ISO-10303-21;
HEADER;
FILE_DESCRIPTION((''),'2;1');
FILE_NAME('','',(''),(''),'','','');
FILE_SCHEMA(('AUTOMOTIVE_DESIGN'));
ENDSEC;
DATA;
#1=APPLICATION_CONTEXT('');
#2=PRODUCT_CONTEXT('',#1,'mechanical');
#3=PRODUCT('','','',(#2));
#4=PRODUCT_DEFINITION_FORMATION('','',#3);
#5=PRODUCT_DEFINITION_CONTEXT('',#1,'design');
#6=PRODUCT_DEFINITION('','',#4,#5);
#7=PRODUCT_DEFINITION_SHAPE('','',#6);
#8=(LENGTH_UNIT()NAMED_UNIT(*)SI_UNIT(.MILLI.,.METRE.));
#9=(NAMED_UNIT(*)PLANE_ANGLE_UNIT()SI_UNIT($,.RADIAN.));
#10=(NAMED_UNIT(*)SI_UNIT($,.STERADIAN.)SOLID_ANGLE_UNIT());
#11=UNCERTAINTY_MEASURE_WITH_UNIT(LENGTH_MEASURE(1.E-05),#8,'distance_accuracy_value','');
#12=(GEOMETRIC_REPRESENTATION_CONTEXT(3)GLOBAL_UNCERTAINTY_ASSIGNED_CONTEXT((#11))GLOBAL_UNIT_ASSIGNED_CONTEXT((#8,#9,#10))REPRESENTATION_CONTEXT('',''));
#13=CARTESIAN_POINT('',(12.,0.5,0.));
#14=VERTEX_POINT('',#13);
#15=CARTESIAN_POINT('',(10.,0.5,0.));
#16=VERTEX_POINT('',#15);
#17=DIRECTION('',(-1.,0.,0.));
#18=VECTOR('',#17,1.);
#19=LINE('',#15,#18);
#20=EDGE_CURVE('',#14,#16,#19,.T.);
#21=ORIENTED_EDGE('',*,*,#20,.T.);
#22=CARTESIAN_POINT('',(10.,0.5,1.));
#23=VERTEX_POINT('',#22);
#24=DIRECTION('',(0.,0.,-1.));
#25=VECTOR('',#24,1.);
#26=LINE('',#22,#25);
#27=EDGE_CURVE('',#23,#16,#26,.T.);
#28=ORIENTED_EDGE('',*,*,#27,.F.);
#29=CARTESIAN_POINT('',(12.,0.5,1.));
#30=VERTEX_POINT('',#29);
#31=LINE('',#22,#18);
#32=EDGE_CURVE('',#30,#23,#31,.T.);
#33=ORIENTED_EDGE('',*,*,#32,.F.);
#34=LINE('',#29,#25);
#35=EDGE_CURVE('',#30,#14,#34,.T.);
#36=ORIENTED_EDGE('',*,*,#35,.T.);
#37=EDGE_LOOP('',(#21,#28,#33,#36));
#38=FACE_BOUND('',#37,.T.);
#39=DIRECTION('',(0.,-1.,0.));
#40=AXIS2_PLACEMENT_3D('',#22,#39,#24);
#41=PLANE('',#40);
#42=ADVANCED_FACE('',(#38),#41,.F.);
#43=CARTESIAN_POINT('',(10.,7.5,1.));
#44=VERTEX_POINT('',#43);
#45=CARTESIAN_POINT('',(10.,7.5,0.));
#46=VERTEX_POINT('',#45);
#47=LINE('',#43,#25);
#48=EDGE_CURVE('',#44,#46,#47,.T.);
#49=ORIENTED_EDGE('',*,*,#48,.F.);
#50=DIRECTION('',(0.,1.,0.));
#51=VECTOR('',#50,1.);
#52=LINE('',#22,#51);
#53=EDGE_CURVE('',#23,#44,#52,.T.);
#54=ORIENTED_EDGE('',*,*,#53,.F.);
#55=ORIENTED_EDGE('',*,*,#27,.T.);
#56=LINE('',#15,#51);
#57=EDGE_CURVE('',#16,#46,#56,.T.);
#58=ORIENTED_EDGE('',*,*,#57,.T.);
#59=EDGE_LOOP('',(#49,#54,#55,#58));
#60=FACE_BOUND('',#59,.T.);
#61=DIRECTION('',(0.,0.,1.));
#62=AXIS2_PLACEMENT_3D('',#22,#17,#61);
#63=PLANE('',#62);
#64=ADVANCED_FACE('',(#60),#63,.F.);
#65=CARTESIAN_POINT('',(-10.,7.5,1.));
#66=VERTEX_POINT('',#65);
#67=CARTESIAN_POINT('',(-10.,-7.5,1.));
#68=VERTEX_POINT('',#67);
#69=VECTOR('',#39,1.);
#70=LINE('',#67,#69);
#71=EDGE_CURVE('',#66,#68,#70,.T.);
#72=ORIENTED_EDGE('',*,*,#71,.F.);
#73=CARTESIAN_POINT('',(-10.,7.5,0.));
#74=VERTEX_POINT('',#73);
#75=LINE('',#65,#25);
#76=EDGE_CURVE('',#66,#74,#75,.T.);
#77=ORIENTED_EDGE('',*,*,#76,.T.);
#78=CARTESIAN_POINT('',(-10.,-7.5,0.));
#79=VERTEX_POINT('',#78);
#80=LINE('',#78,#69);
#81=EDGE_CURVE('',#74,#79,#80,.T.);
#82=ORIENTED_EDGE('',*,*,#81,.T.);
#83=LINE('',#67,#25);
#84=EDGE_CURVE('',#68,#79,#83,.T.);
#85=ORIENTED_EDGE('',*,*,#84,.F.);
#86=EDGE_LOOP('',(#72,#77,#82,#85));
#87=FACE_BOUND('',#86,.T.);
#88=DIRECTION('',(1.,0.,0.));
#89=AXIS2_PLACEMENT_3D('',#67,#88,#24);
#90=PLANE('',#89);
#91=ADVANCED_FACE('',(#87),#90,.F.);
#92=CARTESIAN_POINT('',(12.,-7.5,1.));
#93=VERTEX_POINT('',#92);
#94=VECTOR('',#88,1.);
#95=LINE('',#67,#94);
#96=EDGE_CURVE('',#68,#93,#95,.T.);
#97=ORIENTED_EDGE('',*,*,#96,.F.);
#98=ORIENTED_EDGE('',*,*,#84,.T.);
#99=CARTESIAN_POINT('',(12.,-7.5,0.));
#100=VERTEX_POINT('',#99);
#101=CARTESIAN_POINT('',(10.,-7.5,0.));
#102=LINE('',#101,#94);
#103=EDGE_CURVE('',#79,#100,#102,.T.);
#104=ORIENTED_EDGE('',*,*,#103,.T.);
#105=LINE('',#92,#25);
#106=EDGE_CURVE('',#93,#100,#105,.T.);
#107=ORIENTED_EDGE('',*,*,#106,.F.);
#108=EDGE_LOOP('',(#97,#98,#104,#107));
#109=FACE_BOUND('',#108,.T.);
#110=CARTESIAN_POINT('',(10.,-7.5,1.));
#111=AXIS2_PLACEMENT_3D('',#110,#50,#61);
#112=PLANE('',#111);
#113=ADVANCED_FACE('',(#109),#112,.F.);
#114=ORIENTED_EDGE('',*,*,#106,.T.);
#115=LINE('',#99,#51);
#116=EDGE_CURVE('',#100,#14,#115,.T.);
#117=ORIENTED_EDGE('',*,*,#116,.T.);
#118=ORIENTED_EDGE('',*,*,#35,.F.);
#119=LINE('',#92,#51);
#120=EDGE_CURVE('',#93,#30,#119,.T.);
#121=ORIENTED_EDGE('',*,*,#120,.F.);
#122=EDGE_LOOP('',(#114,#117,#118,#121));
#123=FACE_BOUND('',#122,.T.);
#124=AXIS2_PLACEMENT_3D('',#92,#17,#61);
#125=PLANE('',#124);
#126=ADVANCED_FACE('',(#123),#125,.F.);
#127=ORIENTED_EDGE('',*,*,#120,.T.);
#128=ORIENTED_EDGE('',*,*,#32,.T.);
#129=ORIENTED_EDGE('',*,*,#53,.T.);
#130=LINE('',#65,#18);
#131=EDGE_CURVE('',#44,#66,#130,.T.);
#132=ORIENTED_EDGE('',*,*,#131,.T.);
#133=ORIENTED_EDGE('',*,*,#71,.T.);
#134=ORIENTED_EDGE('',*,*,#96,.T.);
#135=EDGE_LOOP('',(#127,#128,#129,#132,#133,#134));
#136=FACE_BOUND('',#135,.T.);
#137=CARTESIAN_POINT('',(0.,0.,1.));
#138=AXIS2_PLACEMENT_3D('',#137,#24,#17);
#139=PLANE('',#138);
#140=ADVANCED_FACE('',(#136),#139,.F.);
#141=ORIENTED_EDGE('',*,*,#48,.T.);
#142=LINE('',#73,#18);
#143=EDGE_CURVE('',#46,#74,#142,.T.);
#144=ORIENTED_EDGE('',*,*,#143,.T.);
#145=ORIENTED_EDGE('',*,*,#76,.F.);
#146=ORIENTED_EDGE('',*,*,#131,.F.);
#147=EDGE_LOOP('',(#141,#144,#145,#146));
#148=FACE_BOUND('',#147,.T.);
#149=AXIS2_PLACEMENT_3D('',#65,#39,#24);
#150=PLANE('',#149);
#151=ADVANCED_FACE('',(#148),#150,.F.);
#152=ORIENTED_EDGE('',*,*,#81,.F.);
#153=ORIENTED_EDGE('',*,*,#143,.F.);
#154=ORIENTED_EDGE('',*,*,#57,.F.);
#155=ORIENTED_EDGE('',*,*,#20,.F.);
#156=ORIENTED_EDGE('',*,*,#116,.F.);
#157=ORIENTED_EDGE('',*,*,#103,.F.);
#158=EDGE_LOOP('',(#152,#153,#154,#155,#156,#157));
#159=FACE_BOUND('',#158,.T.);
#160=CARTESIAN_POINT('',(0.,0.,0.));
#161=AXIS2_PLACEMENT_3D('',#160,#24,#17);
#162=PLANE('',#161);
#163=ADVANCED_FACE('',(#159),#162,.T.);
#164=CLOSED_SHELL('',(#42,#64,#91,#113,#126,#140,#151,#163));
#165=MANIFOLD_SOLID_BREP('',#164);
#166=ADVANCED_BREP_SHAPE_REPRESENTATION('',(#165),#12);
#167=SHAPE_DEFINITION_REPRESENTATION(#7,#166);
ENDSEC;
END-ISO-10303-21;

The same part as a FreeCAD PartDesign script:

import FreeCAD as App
import Part
import Sketcher

V = App.Vector
Q = App.Units.Quantity

doc = App.newDocument("Part")
body = doc.addObject("PartDesign::Body", "Body")

sketch1 = body.newObject("Sketcher::SketchObject", "Sketch")
sketch1.AttachmentSupport = (doc.getObject("XY_Plane"), [""])
sketch1.MapMode = "FlatFace"
sketch1.addGeometry(Part.LineSegment(V(-10, -7.5, 0), V(12, -7.5, 0)), False)
sketch1.addGeometry(Part.LineSegment(V(12, -7.5, 0), V(12, 0.5, 0)), False)
sketch1.addGeometry(Part.LineSegment(V(12, 0.5, 0), V(10, 0.5, 0)), False)
sketch1.addGeometry(Part.LineSegment(V(10, 0.5, 0), V(10, 7.5, 0)), False)
sketch1.addGeometry(Part.LineSegment(V(10, 7.5, 0), V(-10, 7.5, 0)), False)
sketch1.addGeometry(Part.LineSegment(V(-10, 7.5, 0), V(-10, -7.5, 0)), False)
sketch1.addConstraint(Sketcher.Constraint("Coincident", 0, 2, 1, 1))
sketch1.addConstraint(Sketcher.Constraint("Coincident", 1, 2, 2, 1))
sketch1.addConstraint(Sketcher.Constraint("Coincident", 2, 2, 3, 1))
sketch1.addConstraint(Sketcher.Constraint("Coincident", 3, 2, 4, 1))
sketch1.addConstraint(Sketcher.Constraint("Coincident", 4, 2, 5, 1))
sketch1.addConstraint(Sketcher.Constraint("Coincident", 5, 2, 0, 1))
sketch1.addConstraint(Sketcher.Constraint("Horizontal", 0))
sketch1.addConstraint(Sketcher.Constraint("Vertical", 1))
sketch1.addConstraint(Sketcher.Constraint("Horizontal", 2))
sketch1.addConstraint(Sketcher.Constraint("Vertical", 3))
sketch1.addConstraint(Sketcher.Constraint("Horizontal", 4))
sketch1.addConstraint(Sketcher.Constraint("Vertical", 5))
sketch1.addConstraint(Sketcher.Constraint("Symmetric", 3, 2, 5, 2, -1, 1))
sketch1.addConstraint(Sketcher.Constraint("DistanceX", 0, 1, 0, 2, Q("22 mm")))
sketch1.addConstraint(Sketcher.Constraint("DistanceX", 2, 2, 2, 1, Q("2 mm")))
sketch1.addConstraint(Sketcher.Constraint("DistanceY", 1, 1, 1, 2, Q("8 mm")))
sketch1.addConstraint(Sketcher.Constraint("DistanceY", 3, 1, 3, 2, Q("7 mm")))
pad1 = body.newObject("PartDesign::Pad", "Pad")
pad1.Profile = sketch1
pad1.Length = 1

doc.recompute()
